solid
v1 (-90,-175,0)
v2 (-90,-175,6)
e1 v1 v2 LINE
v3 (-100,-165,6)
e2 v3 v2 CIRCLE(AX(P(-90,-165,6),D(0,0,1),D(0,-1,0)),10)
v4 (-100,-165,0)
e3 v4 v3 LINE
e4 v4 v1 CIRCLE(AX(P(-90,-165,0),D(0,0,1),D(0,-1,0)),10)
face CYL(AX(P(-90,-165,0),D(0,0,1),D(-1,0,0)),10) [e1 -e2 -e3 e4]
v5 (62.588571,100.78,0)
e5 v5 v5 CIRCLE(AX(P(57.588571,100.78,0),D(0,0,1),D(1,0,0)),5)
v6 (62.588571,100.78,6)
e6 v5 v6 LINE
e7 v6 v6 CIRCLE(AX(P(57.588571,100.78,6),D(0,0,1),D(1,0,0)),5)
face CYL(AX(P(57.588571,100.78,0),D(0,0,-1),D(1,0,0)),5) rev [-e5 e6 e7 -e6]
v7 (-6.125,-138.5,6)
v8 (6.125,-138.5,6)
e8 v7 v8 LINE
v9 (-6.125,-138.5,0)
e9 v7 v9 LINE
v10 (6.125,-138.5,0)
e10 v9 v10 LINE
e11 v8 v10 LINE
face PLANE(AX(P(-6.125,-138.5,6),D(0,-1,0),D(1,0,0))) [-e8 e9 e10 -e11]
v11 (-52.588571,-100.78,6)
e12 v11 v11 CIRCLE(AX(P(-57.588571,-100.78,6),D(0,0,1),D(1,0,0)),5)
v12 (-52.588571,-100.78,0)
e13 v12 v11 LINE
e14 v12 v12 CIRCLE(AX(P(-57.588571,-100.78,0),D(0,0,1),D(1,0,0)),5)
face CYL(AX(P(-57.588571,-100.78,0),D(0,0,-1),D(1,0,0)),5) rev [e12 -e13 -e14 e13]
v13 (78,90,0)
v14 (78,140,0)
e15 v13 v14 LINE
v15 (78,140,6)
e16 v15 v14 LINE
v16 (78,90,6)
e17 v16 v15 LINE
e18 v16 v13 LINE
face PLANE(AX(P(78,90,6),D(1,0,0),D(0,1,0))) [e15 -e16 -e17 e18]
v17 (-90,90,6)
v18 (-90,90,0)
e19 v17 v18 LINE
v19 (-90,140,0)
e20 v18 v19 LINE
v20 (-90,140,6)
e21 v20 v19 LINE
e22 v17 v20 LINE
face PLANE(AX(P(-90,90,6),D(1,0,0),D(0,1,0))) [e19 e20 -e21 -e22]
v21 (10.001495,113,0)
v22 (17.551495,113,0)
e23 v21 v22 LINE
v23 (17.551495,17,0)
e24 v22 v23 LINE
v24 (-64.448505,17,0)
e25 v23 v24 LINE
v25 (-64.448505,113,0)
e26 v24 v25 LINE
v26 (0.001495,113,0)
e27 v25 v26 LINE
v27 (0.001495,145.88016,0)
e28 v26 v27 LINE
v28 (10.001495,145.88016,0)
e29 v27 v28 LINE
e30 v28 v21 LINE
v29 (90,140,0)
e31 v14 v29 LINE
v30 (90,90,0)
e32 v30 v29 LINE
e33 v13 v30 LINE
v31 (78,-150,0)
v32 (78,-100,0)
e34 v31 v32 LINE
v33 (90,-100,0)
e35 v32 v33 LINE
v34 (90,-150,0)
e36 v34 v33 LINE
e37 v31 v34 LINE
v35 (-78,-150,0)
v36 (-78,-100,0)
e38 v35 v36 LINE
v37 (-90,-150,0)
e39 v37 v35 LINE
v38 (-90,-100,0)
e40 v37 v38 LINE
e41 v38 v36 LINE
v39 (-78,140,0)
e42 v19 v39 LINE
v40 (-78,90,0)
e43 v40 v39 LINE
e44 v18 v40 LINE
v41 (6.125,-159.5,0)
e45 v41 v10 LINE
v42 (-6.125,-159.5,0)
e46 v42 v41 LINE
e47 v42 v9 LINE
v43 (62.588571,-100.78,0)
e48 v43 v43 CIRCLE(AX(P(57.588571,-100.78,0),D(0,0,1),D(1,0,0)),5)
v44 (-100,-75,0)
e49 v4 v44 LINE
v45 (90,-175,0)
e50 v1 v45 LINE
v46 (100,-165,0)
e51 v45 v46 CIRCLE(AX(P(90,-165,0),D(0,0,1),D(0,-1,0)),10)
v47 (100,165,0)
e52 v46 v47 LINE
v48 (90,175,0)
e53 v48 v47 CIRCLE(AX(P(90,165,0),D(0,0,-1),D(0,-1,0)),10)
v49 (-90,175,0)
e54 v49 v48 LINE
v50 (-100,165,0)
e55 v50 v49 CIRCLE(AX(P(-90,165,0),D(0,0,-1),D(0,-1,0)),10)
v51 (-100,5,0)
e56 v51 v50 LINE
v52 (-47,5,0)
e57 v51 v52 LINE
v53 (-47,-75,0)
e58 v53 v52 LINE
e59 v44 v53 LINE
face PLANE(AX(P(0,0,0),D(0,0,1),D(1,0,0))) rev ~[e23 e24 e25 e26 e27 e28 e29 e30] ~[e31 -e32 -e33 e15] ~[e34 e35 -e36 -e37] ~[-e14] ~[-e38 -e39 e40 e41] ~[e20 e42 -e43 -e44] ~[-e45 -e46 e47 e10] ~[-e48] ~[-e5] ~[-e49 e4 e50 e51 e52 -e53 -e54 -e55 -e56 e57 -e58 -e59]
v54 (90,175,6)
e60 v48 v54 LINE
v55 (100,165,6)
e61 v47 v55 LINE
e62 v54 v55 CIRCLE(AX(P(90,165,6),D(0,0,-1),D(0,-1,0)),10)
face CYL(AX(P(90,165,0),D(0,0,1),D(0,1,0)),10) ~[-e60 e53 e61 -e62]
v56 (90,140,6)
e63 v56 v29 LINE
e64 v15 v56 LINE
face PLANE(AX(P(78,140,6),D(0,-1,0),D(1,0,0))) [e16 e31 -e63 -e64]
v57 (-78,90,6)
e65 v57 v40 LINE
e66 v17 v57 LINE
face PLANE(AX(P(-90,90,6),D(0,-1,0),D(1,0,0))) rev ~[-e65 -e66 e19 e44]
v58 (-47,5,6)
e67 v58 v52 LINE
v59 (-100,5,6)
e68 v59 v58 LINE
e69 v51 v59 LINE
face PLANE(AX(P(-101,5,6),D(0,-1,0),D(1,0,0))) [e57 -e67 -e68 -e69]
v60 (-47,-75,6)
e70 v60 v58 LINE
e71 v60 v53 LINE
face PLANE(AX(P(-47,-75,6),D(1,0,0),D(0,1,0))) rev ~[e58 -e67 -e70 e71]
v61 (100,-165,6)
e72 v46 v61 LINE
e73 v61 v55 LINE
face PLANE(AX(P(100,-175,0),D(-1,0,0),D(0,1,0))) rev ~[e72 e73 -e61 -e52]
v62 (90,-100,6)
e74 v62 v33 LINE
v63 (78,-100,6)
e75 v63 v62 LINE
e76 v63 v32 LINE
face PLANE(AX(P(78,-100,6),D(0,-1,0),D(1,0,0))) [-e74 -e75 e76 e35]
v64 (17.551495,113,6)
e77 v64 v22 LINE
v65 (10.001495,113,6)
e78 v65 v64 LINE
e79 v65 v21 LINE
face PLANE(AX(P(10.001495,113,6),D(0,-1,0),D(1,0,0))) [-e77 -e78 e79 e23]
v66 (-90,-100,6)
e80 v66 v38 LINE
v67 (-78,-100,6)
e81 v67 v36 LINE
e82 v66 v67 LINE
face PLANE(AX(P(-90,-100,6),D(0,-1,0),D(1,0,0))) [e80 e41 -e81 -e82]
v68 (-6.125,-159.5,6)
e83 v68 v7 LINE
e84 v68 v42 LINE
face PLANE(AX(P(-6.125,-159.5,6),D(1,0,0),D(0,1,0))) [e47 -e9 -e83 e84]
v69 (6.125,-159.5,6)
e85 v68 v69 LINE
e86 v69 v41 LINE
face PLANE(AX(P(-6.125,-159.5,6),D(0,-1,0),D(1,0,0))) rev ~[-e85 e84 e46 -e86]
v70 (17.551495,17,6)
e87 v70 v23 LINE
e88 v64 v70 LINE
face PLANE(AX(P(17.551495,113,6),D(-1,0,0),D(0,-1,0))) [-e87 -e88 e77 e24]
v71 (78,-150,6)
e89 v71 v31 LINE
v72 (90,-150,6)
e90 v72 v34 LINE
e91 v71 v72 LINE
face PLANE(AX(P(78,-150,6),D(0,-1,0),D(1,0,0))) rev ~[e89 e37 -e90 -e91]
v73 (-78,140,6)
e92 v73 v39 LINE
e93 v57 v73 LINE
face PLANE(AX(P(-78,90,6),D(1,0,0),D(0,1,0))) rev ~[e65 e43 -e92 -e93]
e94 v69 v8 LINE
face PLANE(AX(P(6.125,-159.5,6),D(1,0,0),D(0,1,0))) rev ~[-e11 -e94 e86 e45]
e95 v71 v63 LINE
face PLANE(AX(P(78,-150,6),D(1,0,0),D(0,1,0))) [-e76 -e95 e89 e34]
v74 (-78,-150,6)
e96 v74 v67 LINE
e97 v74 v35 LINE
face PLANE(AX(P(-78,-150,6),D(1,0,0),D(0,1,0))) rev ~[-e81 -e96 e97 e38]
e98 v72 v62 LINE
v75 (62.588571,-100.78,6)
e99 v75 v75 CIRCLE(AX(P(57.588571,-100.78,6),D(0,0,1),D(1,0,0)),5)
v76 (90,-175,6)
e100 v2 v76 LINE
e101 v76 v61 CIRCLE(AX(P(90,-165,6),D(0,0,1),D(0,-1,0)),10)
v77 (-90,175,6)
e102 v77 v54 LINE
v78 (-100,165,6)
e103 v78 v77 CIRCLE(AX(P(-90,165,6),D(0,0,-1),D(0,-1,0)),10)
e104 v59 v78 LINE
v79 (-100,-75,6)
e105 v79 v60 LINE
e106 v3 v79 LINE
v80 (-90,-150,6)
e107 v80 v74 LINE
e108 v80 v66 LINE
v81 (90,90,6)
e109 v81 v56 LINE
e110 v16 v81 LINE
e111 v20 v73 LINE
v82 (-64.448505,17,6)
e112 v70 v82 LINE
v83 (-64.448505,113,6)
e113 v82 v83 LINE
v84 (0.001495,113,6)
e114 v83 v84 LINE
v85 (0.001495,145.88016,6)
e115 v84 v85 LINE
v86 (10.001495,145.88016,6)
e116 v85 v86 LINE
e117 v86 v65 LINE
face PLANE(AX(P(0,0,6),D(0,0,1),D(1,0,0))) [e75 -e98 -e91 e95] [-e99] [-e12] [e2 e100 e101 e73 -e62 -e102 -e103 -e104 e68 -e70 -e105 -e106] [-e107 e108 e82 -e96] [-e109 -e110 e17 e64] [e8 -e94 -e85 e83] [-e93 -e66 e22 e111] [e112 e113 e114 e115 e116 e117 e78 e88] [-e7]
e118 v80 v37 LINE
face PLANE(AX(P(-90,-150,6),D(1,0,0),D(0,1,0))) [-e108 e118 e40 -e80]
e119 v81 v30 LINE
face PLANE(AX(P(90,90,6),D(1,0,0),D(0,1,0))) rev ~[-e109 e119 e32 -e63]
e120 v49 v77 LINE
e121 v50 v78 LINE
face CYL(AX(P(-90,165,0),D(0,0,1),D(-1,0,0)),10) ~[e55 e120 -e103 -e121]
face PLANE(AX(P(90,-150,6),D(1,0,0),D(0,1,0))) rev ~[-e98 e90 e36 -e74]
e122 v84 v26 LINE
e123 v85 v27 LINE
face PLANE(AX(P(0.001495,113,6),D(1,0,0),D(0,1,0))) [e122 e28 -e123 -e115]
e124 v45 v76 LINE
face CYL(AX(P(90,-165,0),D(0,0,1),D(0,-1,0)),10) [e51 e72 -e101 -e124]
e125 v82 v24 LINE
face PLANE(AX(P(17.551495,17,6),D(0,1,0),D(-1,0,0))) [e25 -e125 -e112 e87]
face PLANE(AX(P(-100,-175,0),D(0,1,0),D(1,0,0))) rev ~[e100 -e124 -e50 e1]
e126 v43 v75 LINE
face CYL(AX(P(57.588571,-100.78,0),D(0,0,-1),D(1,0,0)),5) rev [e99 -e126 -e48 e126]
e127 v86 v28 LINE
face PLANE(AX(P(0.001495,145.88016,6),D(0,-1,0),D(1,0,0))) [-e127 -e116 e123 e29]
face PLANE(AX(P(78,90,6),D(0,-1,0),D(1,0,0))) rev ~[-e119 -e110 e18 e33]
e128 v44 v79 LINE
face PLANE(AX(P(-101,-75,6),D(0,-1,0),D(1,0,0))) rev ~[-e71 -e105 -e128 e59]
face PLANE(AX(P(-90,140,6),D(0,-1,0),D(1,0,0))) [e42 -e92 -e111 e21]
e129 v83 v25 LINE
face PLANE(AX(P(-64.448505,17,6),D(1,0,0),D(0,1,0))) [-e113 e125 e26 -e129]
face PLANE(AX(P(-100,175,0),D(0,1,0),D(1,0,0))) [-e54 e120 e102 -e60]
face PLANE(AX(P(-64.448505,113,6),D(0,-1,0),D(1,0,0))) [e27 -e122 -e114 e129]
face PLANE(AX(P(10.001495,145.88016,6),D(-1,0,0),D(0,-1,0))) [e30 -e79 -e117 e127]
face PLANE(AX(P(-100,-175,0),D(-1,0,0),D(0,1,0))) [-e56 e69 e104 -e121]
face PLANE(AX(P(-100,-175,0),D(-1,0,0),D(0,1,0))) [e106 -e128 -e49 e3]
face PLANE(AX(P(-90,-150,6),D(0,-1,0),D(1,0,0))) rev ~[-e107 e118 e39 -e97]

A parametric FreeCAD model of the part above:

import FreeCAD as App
import Part
import Sketcher


def edges_at(feature, points):
    """Names of the edges that pass closest to the given points."""
    edges = feature.Shape.Edges
    near = lambda p: min(range(len(edges)), key=lambda i: edges[i].distToShape(Part.Vertex(*p))[0])
    return sorted({f"Edge{near(p) + 1}" for p in points})

doc = App.newDocument("Part")
body = doc.addObject("PartDesign::Body", "Body")

# Sketch on XY plane
sketch1 = body.newObject("Sketcher::SketchObject", "Sketch")
sketch1.AttachmentSupport = (doc.getObject("XY_Plane"), [""])
sketch1.MapMode = "FlatFace"
sketch1.addGeometry(Part.LineSegment(App.Vector(-100, 175, 0), App.Vector(-100, -175, 0)), False)
sketch1.addGeometry(Part.LineSegment(App.Vector(-100, -175, 0), App.Vector(100, -175, 0)), False)
sketch1.addGeometry(Part.LineSegment(App.Vector(100, -175, 0), App.Vector(100, 175, 0)), False)
sketch1.addGeometry(Part.LineSegment(App.Vector(100, 175, 0), App.Vector(-100, 175, 0)), False)
sketch1.addGeometry(Part.Circle(App.Vector(-58, -101, 0), App.Vector(0, 0, 1), 5), False)
sketch1.addGeometry(Part.Circle(App.Vector(58, -101, 0), App.Vector(0, 0, 1), 5), False)
sketch1.addGeometry(Part.Circle(App.Vector(-58, 101, 0), App.Vector(0, 0, 1), 5), False)
sketch1.addGeometry(Part.Circle(App.Vector(58, 101, 0), App.Vector(0, 0, 1), 5), False)
sketch1.addConstraint(Sketcher.Constraint("Coincident", 0, 2, 1, 1))
sketch1.addConstraint(Sketcher.Constraint("Coincident", 1, 2, 2, 1))
sketch1.addConstraint(Sketcher.Constraint("Coincident", 2, 2, 3, 1))
sketch1.addConstraint(Sketcher.Constraint("Coincident", 3, 2, 0, 1))
sketch1.addConstraint(Sketcher.Constraint("Vertical", 0))
sketch1.addConstraint(Sketcher.Constraint("Horizontal", 1))
sketch1.addConstraint(Sketcher.Constraint("Vertical", 2))
sketch1.addConstraint(Sketcher.Constraint("Horizontal", 3))
sketch1.addConstraint(Sketcher.Constraint("Equal", 4, 5))
sketch1.addConstraint(Sketcher.Constraint("Equal", 5, 6))
sketch1.addConstraint(Sketcher.Constraint("Equal", 6, 7))
sketch1.addConstraint(Sketcher.Constraint("Symmetric", 5, 3, 6, 3, -1, 1))
sketch1.addConstraint(Sketcher.Constraint("Symmetric", 4, 3, 7, 3, -1, 1))
sketch1.addConstraint(Sketcher.Constraint("Symmetric", 0, 2, 2, 2, -1, 1))
sketch1.addConstraint(Sketcher.Constraint("Symmetric", 4, 3, 5, 3, -2))
sketch1.addConstraint(Sketcher.Constraint("Diameter", 4, 10.0))
sketch1.addConstraint(Sketcher.Constraint("DistanceX", 1, 1, 1, 2, 200.0))
sketch1.addConstraint(Sketcher.Constraint("DistanceY", 0, 2, 0, 1, 350.0))
sketch1.addConstraint(Sketcher.Constraint("DistanceY", 4, 3, -1, 1, 100.78))
sketch1.addConstraint(Sketcher.Constraint("DistanceX", 4, 3, -1, 1, 57.588571))
pad1 = body.newObject("PartDesign::Pad", "Pad")
pad1.Profile = sketch1
pad1.Length = 6
doc.recompute()

fillet = body.newObject("PartDesign::Fillet", "Fillet")
fillet.Base = (pad1, edges_at(pad1, [
    (100, -175, 3),
    (-100, -175, 3),
    (-100, 175, 3),
    (100, 175, 3),
]))
fillet.Radius = 10

# Sketch on XY plane
sketch2 = body.newObject("Sketcher::SketchObject", "Sketch001")
sketch2.AttachmentSupport = (doc.getObject("XY_Plane"), [""])
sketch2.MapMode = "FlatFace"
sketch2.AttachmentOffset = App.Placement(App.Vector(0, 0, 6), App.Rotation())
sketch2.addGeometry(Part.LineSegment(App.Vector(18, 113, 0), App.Vector(10, 113, 0)), False)
sketch2.addGeometry(Part.LineSegment(App.Vector(10, 113, 0), App.Vector(10, 146, 0)), False)
sketch2.addGeometry(Part.LineSegment(App.Vector(10, 146, 0), App.Vector(0, 146, 0)), False)
sketch2.addGeometry(Part.LineSegment(App.Vector(0, 146, 0), App.Vector(0, 113, 0)), False)
sketch2.addGeometry(Part.LineSegment(App.Vector(0, 113, 0), App.Vector(-64, 113, 0)), False)
sketch2.addGeometry(Part.LineSegment(App.Vector(-64, 113, 0), App.Vector(-64, 17, 0)), False)
sketch2.addGeometry(Part.LineSegment(App.Vector(-64, 17, 0), App.Vector(18, 17, 0)), False)
sketch2.addGeometry(Part.LineSegment(App.Vector(18, 17, 0), App.Vector(18, 113, 0)), False)
sketch2.addGeometry(Part.LineSegment(App.Vector(-90, 140, 0), App.Vector(-90, 90, 0)), False)
sketch2.addGeometry(Part.LineSegment(App.Vector(-90, 90, 0), App.Vector(-78, 90, 0)), False)
sketch2.addGeometry(Part.LineSegment(App.Vector(-78, 90, 0), App.Vector(-78, 140, 0)), False)
sketch2.addGeometry(Part.LineSegment(App.Vector(-78, 140, 0), App.Vector(-90, 140, 0)), False)
sketch2.addGeometry(Part.LineSegment(App.Vector(-90, -100, 0), App.Vector(-90, -150, 0)), False)
sketch2.addGeometry(Part.LineSegment(App.Vector(-90, -150, 0), App.Vector(-78, -150, 0)), False)
sketch2.addGeometry(Part.LineSegment(App.Vector(-78, -150, 0), App.Vector(-78, -100, 0)), False)
sketch2.addGeometry(Part.LineSegment(App.Vector(-78, -100, 0), App.Vector(-90, -100, 0)), False)
sketch2.addGeometry(Part.LineSegment(App.Vector(78, -100, 0), App.Vector(78, -150, 0)), False)
sketch2.addGeometry(Part.LineSegment(App.Vector(78, -150, 0), App.Vector(90, -150, 0)), False)
sketch2.addGeometry(Part.LineSegment(App.Vector(90, -150, 0), App.Vector(90, -100, 0)), False)
sketch2.addGeometry(Part.LineSegment(App.Vector(90, -100, 0), App.Vector(78, -100, 0)), False)
sketch2.addGeometry(Part.LineSegment(App.Vector(78, 140, 0), App.Vector(78, 90, 0)), False)
sketch2.addGeometry(Part.LineSegment(App.Vector(78, 90, 0), App.Vector(90, 90, 0)), False)
sketch2.addGeometry(Part.LineSegment(App.Vector(90, 90, 0), App.Vector(90, 140, 0)), False)
sketch2.addGeometry(Part.LineSegment(App.Vector(90, 140, 0), App.Vector(78, 140, 0)), False)
sketch2.addGeometry(Part.LineSegment(App.Vector(-101, 5, 0), App.Vector(-101, -75, 0)), False)
sketch2.addGeometry(Part.LineSegment(App.Vector(-101, -75, 0), App.Vector(-47, -75, 0)), False)
sketch2.addGeometry(Part.LineSegment(App.Vector(-47, -75, 0), App.Vector(-47, 5, 0)), False)
sketch2.addGeometry(Part.LineSegment(App.Vector(-47, 5, 0), App.Vector(-101, 5, 0)), False)
sketch2.addGeometry(Part.LineSegment(App.Vector(-6, -138, 0), App.Vector(-6, -160, 0)), False)
sketch2.addGeometry(Part.LineSegment(App.Vector(-6, -160, 0), App.Vector(6, -160, 0)), False)
sketch2.addGeometry(Part.LineSegment(App.Vector(6, -160, 0), App.Vector(6, -138, 0)), False)
sketch2.addGeometry(Part.LineSegment(App.Vector(6, -138, 0), App.Vector(-6, -138, 0)), False)
sketch2.addConstraint(Sketcher.Constraint("Coincident", 0, 2, 1, 1))
sketch2.addConstraint(Sketcher.Constraint("Coincident", 1, 2, 2, 1))
sketch2.addConstraint(Sketcher.Constraint("Coincident", 2, 2, 3, 1))
sketch2.addConstraint(Sketcher.Constraint("Coincident", 3, 2, 4, 1))
sketch2.addConstraint(Sketcher.Constraint("Coincident", 4, 2, 5, 1))
sketch2.addConstraint(Sketcher.Constraint("Coincident", 5, 2, 6, 1))
sketch2.addConstraint(Sketcher.Constraint("Coincident", 6, 2, 7, 1))
sketch2.addConstraint(Sketcher.Constraint("Coincident", 7, 2, 0, 1))
sketch2.addConstraint(Sketcher.Constraint("Coincident", 8, 2, 9, 1))
sketch2.addConstraint(Sketcher.Constraint("Coincident", 9, 2, 10, 1))
sketch2.addConstraint(Sketcher.Constraint("Coincident", 10, 2, 11, 1))
sketch2.addConstraint(Sketcher.Constraint("Coincident", 11, 2, 8, 1))
sketch2.addConstraint(Sketcher.Constraint("Coincident", 12, 2, 13, 1))
sketch2.addConstraint(Sketcher.Constraint("Coincident", 13, 2, 14, 1))
sketch2.addConstraint(Sketcher.Constraint("Coincident", 14, 2, 15, 1))
sketch2.addConstraint(Sketcher.Constraint("Coincident", 15, 2, 12, 1))
sketch2.addConstraint(Sketcher.Constraint("Coincident", 16, 2, 17, 1))
sketch2.addConstraint(Sketcher.Constraint("Coincident", 17, 2, 18, 1))
sketch2.addConstraint(Sketcher.Constraint("Coincident", 18, 2, 19, 1))
sketch2.addConstraint(Sketcher.Constraint("Coincident", 19, 2, 16, 1))
sketch2.addConstraint(Sketcher.Constraint("Coincident", 20, 2, 21, 1))
sketch2.addConstraint(Sketcher.Constraint("Coincident", 21, 2, 22, 1))
sketch2.addConstraint(Sketcher.Constraint("Coincident", 22, 2, 23, 1))
sketch2.addConstraint(Sketcher.Constraint("Coincident", 23, 2, 20, 1))
sketch2.addConstraint(Sketcher.Constraint("Coincident", 24, 2, 25, 1))
sketch2.addConstraint(Sketcher.Constraint("Coincident", 25, 2, 26, 1))
sketch2.addConstraint(Sketcher.Constraint("Coincident", 26, 2, 27, 1))
sketch2.addConstraint(Sketcher.Constraint("Coincident", 27, 2, 24, 1))
sketch2.addConstraint(Sketcher.Constraint("Coincident", 28, 2, 29, 1))
sketch2.addConstraint(Sketcher.Constraint("Coincident", 29, 2, 30, 1))
sketch2.addConstraint(Sketcher.Constraint("Coincident", 30, 2, 31, 1))
sketch2.addConstraint(Sketcher.Constraint("Coincident", 31, 2, 28, 1))
sketch2.addConstraint(Sketcher.Constraint("Horizontal", 0))
sketch2.addConstraint(Sketcher.Constraint("Vertical", 1))
sketch2.addConstraint(Sketcher.Constraint("Horizontal", 2))
sketch2.addConstraint(Sketcher.Constraint("Vertical", 3))
sketch2.addConstraint(Sketcher.Constraint("Horizontal", 4))
sketch2.addConstraint(Sketcher.Constraint("Vertical", 5))
sketch2.addConstraint(Sketcher.Constraint("Horizontal", 6))
sketch2.addConstraint(Sketcher.Constraint("Vertical", 7))
sketch2.addConstraint(Sketcher.Constraint("Vertical", 8))
sketch2.addConstraint(Sketcher.Constraint("Horizontal", 9))
sketch2.addConstraint(Sketcher.Constraint("Vertical", 10))
sketch2.addConstraint(Sketcher.Constraint("Horizontal", 11))
sketch2.addConstraint(Sketcher.Constraint("Vertical", 12))
sketch2.addConstraint(Sketcher.Constraint("Horizontal", 13))
sketch2.addConstraint(Sketcher.Constraint("Vertical", 14))
sketch2.addConstraint(Sketcher.Constraint("Horizontal", 15))
sketch2.addConstraint(Sketcher.Constraint("Vertical", 16))
sketch2.addConstraint(Sketcher.Constraint("Horizontal", 17))
sketch2.addConstraint(Sketcher.Constraint("Vertical", 18))
sketch2.addConstraint(Sketcher.Constraint("Horizontal", 19))
sketch2.addConstraint(Sketcher.Constraint("Vertical", 20))
sketch2.addConstraint(Sketcher.Constraint("Horizontal", 21))
sketch2.addConstraint(Sketcher.Constraint("Vertical", 22))
sketch2.addConstraint(Sketcher.Constraint("Horizontal", 23))
sketch2.addConstraint(Sketcher.Constraint("Vertical", 24))
sketch2.addConstraint(Sketcher.Constraint("Horizontal", 25))
sketch2.addConstraint(Sketcher.Constraint("Vertical", 26))
sketch2.addConstraint(Sketcher.Constraint("Horizontal", 27))
sketch2.addConstraint(Sketcher.Constraint("Vertical", 28))
sketch2.addConstraint(Sketcher.Constraint("Horizontal", 29))
sketch2.addConstraint(Sketcher.Constraint("Vertical", 30))
sketch2.addConstraint(Sketcher.Constraint("Horizontal", 31))
sketch2.addConstraint(Sketcher.Constraint("Symmetric", 13, 2, 16, 2, -2))
sketch2.addConstraint(Sketcher.Constraint("Symmetric", 15, 2, 18, 2, -2))
sketch2.addConstraint(Sketcher.Constraint("Symmetric", 9, 2, 20, 2, -2))
sketch2.addConstraint(Sketcher.Constraint("Symmetric", 11, 2, 22, 2, -2))
sketch2.addConstraint(Sketcher.Constraint("Horizontal", 0, 2, 3, 2))
sketch2.addConstraint(Sketcher.Constraint("Vertical", 11, 2, 12, 2))
sketch2.addConstraint(Sketcher.Constraint("Vertical", 10, 2, 13, 2))
sketch2.addConstraint(Sketcher.Constraint("Equal", 10, 12))
sketch2.addConstraint(Sketcher.Constraint("DistanceX", 2, 2, 2, 1, 10.0))
sketch2.addConstraint(Sketcher.Constraint("DistanceX", 6, 1, 6, 2, 82.0))
sketch2.addConstraint(Sketcher.Constraint("DistanceX", 9, 1, 9, 2, 12.0))
sketch2.addConstraint(Sketcher.Constraint("DistanceX", 25, 1, 25, 2, 54.0))
sketch2.addConstraint(Sketcher.Constraint("DistanceY", 5, 2, 5, 1, 96.0))
sketch2.addConstraint(Sketcher.Constraint("DistanceY", 8, 2, 8, 1, 50.0))
sketch2.addConstraint(Sketcher.Constraint("DistanceY", 24, 2, 24, 1, 80.0))
sketch2.addConstraint(Sketcher.Constraint("DistanceY", 28, 2, 28, 1, 21.0))
sketch2.addConstraint(Sketcher.Constraint("DistanceY", -1, 1, 0, 2, 113.0))
sketch2.addConstraint(Sketcher.Constraint("DistanceX", 8, 2, -1, 1, 90.0))
sketch2.addConstraint(Sketcher.Constraint("DistanceY", -1, 1, 8, 2, 90.0))
sketch2.addConstraint(Sketcher.Constraint("DistanceY", 12, 2, -1, 1, 150.0))
sketch2.addConstraint(Sketcher.Constraint("DistanceX", 24, 2, -1, 1, 101.0))
sketch2.addConstraint(Sketcher.Constraint("DistanceY", 24, 2, -1, 1, 75.0))
sketch2.addConstraint(Sketcher.Constraint("DistanceX", 0, 2, 0, 1, 7.55))
sketch2.addConstraint(Sketcher.Constraint("DistanceX", 29, 1, 29, 2, 12.25))
sketch2.addConstraint(Sketcher.Constraint("DistanceY", 28, 2, -1, 1, 159.5))
sketch2.addConstraint(Sketcher.Constraint("DistanceX", 28, 2, -1, 1, 6.125))
sketch2.addConstraint(Sketcher.Constraint("DistanceY", 1, 1, 1, 2, 32.88016))
sketch2.addConstraint(Sketcher.Constraint("DistanceX", -1, 1, 0, 2, 10.001495))
pocket1 = body.newObject("PartDesign::Pocket", "Pocket")
pocket1.Profile = sketch2
pocket1.Type = "ThroughAll"

doc.recompute()
